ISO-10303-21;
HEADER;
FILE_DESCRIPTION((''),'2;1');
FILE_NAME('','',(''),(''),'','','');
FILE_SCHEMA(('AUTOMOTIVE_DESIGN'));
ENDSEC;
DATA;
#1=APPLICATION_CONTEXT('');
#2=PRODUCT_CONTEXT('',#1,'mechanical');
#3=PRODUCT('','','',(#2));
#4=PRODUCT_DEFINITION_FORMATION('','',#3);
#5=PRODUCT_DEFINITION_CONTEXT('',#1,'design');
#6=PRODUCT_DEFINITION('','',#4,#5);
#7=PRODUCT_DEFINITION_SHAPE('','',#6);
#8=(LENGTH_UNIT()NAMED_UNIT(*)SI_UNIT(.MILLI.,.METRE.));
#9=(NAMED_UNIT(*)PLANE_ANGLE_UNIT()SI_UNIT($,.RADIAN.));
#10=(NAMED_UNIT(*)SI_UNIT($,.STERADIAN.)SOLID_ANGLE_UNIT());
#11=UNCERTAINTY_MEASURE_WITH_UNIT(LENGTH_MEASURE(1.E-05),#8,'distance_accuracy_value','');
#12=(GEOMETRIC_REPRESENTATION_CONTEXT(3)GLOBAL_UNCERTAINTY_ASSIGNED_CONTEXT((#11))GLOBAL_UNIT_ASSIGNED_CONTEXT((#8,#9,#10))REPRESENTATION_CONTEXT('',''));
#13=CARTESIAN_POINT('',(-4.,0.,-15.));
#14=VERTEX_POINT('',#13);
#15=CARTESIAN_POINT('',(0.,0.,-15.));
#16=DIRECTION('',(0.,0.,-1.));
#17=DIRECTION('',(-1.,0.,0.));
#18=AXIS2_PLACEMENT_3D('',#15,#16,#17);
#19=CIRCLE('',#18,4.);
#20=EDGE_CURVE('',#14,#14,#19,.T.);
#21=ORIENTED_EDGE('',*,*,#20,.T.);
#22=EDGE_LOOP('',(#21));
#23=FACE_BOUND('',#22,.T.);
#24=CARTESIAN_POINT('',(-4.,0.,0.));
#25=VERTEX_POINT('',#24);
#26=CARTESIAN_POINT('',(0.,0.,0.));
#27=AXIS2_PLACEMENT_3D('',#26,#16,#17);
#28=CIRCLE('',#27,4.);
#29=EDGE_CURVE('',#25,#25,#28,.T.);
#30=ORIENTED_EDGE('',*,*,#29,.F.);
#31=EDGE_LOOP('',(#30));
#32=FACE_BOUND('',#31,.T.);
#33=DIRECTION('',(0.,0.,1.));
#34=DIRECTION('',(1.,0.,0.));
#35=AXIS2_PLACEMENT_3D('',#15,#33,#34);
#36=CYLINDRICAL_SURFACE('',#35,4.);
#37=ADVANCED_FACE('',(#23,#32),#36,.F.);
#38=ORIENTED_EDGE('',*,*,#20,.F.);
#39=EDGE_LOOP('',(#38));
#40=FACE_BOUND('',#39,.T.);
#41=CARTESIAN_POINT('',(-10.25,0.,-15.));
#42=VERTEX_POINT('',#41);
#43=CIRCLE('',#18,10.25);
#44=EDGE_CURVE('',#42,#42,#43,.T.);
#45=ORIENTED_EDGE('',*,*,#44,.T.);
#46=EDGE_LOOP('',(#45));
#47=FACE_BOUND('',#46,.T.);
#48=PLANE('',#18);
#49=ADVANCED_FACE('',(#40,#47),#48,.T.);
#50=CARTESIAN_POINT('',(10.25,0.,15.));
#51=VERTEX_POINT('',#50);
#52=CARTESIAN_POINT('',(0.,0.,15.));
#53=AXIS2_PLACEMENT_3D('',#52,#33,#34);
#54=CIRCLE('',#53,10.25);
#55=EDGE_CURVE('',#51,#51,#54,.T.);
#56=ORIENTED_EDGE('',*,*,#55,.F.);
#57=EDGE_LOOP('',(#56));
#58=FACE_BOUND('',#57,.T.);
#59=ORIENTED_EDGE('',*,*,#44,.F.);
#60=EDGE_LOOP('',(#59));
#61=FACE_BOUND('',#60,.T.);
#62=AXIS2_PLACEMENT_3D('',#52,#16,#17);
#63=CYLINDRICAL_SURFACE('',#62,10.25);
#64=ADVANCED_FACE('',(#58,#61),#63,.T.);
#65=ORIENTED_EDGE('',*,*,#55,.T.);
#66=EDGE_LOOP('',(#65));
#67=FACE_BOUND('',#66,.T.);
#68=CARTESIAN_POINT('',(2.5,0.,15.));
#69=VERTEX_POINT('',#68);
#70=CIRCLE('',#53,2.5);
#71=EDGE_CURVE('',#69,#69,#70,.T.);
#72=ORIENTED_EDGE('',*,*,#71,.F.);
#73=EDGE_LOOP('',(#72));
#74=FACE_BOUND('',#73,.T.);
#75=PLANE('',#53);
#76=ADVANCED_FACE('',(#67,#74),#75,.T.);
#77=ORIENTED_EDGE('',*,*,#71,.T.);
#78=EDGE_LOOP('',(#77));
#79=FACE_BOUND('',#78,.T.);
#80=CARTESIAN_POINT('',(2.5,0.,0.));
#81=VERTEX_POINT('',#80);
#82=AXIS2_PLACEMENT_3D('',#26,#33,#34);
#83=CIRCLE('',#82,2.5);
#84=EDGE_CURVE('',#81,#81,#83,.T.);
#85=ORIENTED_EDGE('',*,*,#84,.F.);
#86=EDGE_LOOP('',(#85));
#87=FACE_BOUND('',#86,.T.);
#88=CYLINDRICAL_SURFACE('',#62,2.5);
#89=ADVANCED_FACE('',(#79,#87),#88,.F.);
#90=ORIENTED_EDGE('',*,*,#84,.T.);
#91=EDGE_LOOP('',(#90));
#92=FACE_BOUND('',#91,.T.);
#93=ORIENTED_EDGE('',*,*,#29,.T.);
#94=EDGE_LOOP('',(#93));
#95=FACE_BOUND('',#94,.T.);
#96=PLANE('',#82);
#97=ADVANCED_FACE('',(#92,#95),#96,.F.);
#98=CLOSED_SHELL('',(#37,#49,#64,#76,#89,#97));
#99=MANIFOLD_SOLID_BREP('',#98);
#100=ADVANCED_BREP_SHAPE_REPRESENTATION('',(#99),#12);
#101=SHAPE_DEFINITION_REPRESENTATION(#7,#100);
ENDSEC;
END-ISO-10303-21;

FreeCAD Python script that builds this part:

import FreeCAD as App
import Part
import Sketcher
from FreeCAD import Vector
Q = App.Units.Quantity

doc = App.newDocument("Part")
body = doc.addObject("PartDesign::Body", "Body")

# Sketch on XY plane
sketch1 = body.newObject("Sketcher::SketchObject", "Sketch")
sketch1.AttachmentSupport = (doc.getObject("XY_Plane"), [""])
sketch1.MapMode = "FlatFace"
sketch1.addGeometry(Part.Circle(Vector(0, 0, 0), Vector(0, 0, 1), 10.2), False)
sketch1.addGeometry(Part.Circle(Vector(0, 0, 0), Vector(0, 0, 1), 2.5), False)
sketch1.addConstraint(Sketcher.Constraint("Coincident", 0, 3, -1, 1))
sketch1.addConstraint(Sketcher.Constraint("Coincident", 1, 3, -1, 1))
sketch1.addConstraint(Sketcher.Constraint("Diameter", 1, Q("5 mm")))
sketch1.addConstraint(Sketcher.Constraint("Diameter", 0, Q("20.5 mm")))
pad1 = body.newObject("PartDesign::Pad", "Pad")
pad1.Profile = sketch1
pad1.Length = 15

# Sketch on XY plane
sketch2 = body.newObject("Sketcher::SketchObject", "Sketch001")
sketch2.AttachmentSupport = (doc.getObject("XY_Plane"), [""])
sketch2.MapMode = "FlatFace"
sketch2.AttachmentOffset = App.Placement(Vector(0, 0, -15), App.Rotation())
sketch2.addGeometry(Part.Circle(Vector(0, 0, 0), Vector(0, 0, 1), 10.2), False)
sketch2.addGeometry(Part.Circle(Vector(0, 0, 0), Vector(0, 0, 1), 4), False)
sketch2.addConstraint(Sketcher.Constraint("Coincident", 0, 3, -1, 1))
sketch2.addConstraint(Sketcher.Constraint("Coincident", 1, 3, -1, 1))
sketch2.addConstraint(Sketcher.Constraint("Diameter", 1, Q("8 mm")))
sketch2.addConstraint(Sketcher.Constraint("Diameter", 0, Q("20.5 mm")))
pad2 = body.newObject("PartDesign::Pad", "Pad001")
pad2.Profile = sketch2
pad2.Length = 15

doc.recompute()
